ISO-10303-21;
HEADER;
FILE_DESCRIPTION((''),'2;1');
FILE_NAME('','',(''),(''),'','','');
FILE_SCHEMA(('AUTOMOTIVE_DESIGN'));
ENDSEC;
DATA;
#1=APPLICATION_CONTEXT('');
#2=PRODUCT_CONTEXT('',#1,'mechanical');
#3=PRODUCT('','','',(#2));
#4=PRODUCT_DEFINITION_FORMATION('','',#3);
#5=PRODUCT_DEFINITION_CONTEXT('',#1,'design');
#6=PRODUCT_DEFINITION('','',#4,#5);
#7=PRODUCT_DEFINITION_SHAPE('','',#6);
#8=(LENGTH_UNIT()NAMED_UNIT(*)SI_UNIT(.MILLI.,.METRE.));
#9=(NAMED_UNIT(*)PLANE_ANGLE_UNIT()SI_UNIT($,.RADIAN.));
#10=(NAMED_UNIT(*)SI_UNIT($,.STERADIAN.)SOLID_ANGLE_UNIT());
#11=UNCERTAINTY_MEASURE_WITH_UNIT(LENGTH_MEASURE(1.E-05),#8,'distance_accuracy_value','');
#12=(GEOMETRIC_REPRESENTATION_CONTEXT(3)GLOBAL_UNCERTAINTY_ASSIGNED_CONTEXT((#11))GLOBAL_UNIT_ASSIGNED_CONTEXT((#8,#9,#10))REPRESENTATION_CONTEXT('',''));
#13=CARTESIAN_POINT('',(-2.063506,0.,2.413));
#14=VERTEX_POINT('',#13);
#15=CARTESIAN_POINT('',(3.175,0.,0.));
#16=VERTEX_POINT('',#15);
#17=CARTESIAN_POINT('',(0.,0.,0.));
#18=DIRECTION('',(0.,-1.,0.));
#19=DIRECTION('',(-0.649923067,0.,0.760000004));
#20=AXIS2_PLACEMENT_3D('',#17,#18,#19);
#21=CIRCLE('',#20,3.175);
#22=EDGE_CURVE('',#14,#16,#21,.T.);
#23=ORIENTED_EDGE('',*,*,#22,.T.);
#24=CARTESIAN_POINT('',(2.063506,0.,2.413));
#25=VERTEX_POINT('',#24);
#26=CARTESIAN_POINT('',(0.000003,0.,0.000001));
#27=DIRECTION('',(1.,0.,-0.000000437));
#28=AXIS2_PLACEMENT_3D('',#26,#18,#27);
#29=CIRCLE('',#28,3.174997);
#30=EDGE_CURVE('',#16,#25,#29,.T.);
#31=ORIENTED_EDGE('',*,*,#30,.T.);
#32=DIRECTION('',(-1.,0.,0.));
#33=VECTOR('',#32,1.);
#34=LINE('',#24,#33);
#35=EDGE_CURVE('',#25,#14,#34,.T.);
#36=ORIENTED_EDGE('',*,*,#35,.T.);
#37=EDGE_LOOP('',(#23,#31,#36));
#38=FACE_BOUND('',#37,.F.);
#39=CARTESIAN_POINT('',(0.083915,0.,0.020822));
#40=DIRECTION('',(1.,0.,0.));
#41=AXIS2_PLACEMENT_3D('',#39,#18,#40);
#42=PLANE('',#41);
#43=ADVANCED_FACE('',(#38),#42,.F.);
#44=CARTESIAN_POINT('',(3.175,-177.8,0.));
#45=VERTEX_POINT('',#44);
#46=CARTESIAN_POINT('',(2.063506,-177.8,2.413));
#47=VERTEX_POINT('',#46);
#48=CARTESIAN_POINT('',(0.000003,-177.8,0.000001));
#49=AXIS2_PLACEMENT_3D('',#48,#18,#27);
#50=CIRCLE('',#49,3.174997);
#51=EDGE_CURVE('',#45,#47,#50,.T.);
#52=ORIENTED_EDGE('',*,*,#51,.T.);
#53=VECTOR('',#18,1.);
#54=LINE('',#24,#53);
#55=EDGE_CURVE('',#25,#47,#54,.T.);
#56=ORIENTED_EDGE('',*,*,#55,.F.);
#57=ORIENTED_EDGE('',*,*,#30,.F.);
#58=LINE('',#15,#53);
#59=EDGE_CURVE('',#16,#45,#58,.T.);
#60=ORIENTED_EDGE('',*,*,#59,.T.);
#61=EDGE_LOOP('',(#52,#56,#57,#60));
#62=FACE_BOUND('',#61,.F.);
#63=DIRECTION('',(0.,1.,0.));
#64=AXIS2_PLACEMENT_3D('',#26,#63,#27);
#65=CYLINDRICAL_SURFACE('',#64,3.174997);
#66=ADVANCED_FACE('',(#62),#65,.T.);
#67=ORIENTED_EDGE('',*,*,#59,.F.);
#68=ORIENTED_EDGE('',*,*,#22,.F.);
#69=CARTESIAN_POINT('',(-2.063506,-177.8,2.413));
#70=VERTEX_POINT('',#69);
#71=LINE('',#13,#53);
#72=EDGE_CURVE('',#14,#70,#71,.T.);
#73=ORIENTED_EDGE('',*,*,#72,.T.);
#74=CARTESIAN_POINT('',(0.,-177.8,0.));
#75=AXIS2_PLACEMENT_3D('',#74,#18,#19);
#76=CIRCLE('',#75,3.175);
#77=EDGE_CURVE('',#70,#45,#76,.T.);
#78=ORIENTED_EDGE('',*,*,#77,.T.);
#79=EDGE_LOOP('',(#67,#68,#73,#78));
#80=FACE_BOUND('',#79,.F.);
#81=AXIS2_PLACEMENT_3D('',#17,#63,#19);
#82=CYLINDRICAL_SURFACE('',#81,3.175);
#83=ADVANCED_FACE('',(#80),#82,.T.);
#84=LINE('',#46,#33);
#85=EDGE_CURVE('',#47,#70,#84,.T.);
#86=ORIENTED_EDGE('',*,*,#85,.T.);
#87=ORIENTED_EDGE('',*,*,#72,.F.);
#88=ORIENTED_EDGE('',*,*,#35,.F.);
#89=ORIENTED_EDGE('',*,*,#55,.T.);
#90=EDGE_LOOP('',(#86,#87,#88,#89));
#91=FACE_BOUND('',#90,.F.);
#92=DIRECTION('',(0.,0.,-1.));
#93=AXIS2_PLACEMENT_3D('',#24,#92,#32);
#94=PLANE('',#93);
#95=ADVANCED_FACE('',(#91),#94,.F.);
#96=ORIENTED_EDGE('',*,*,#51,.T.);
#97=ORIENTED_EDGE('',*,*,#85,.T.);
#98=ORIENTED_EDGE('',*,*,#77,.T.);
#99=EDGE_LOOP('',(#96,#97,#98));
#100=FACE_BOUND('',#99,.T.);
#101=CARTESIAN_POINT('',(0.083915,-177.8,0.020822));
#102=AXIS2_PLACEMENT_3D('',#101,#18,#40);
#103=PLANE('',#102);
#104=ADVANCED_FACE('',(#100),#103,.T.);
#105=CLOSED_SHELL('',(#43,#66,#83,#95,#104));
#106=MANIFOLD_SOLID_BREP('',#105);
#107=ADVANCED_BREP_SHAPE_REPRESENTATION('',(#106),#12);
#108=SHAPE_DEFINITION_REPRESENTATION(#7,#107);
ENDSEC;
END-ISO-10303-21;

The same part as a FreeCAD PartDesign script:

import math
import FreeCAD as App
import Part
import Sketcher
from FreeCAD import Vector
Q = App.Units.Quantity

doc = App.newDocument("Part")
body = doc.addObject("PartDesign::Body", "Body")

sketch1 = body.newObject("Sketcher::SketchObject", "Sketch")
sketch1.AttachmentSupport = (doc.getObject("XZ_Plane"), [""])
sketch1.MapMode = "FlatFace"
sketch1.addGeometry([
    Part.ArcOfCircle(Part.Circle(Vector(0, 0, 0), Vector(0, 0, 1), 3.2), math.radians(131), math.radians(360)),
    Part.ArcOfCircle(Part.Circle(Vector(0, 0, 0), Vector(0, 0, 1), 3.2), math.radians(0), math.radians(49)),
    Part.LineSegment(Vector(2.1, 2.4, 0), Vector(-2.1, 2.4, 0)),
], False)
sketch1.addConstraint([
    Sketcher.Constraint("Tangent", 0, 2, 1, 1),
    Sketcher.Constraint("Coincident", 1, 2, 2, 1),
    Sketcher.Constraint("Coincident", 2, 2, 0, 1),
    Sketcher.Constraint("Horizontal", 2),
    Sketcher.Constraint("Coincident", 0, 3, -1, 1),
    Sketcher.Constraint("PointOnObject", 0, 2, -1),
    Sketcher.Constraint("Radius", 0, Q("0.125 in")),
    Sketcher.Constraint("Radius", 1, Q("0.1249999 in")),
    Sketcher.Constraint("DistanceY", -1, 1, 1, 2, Q("0.095 in")),
])
pad1 = body.newObject("PartDesign::Pad", "Pad")
pad1.Profile = sketch1
pad1.Length = Q("7 in")

doc.recompute()
